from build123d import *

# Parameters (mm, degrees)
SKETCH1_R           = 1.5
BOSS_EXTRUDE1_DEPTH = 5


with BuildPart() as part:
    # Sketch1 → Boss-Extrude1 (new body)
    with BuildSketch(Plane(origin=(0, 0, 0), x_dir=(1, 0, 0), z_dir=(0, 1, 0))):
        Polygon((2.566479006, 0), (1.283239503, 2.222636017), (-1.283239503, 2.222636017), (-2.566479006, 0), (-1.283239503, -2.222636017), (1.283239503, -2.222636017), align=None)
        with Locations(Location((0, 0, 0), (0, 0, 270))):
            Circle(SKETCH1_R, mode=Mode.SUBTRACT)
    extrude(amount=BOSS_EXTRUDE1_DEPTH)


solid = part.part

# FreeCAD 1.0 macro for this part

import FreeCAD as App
import Part
import Sketcher
from FreeCAD import Vector
Q = App.Units.Quantity


def add_polygon(sketch, points):
    """Adds a closed chain of lines whose ends are joined by coincident constraints."""
    first, n = sketch.GeometryCount, len(points)
    for a, b in zip(points, points[1:] + points[:1]):
        sketch.addGeometry(Part.LineSegment(App.Vector(*a, 0), App.Vector(*b, 0)), False)
    for i in range(n):
        sketch.addConstraint(Sketcher.Constraint("Coincident", first + i, 2, first + (i + 1) % n, 1))

doc = App.newDocument("Part")
body = doc.addObject("PartDesign::Body", "Body")

# Sketch on XZ plane
sketch1 = doc.addObject("Sketcher::SketchObject", "Sketch")
body.addObject(sketch1)
sketch1.AttachmentSupport = (doc.XZ_Plane, [""])
sketch1.MapMode = "FlatFace"
add_polygon(sketch1, [(2.6, 0), (1.3, -2.2), (-1.3, -2.2), (-2.6, 0), (-1.3, 2.2), (1.3, 2.2)])  # lines 0-5
sketch1.addGeometry(Part.Circle(Vector(0, 0, 0), Vector(0, 0, 1), 1.5), False)  # 6
sketch1.addConstraint(Sketcher.Constraint("Horizontal", 1))
sketch1.addConstraint(Sketcher.Constraint("Horizontal", 4))
sketch1.addConstraint(Sketcher.Constraint("Coincident", 6, 3, -1, 1))
sketch1.addConstraint(Sketcher.Constraint("Symmetric", 0, 2, 3, 2, -1, 1))
sketch1.addConstraint(Sketcher.Constraint("Symmetric", 2, 2, 5, 2, -1, 1))
sketch1.addConstraint(Sketcher.Constraint("PointOnObject", 2, 2, -1))
sketch1.addConstraint(Sketcher.Constraint("Parallel", 2, 5))
sketch1.addConstraint(Sketcher.Constraint("Vertical", 1, 2, 3, 2))
sketch1.addConstraint(Sketcher.Constraint("Diameter", 6, 3.0))
sketch1.addConstraint(Sketcher.Constraint("Angle", 0, Q("-120 deg")))
sketch1.addConstraint(Sketcher.Constraint("DistanceX", 1, 2, 1, 1, 2.566479))
sketch1.addConstraint(Sketcher.Constraint("Distance", 0, 2.566479))
pad1 = doc.addObject("PartDesign::Pad", "Pad")
body.addObject(pad1)
pad1.Profile = sketch1
pad1.Length = 5
pad1.Reversed = True

doc.recompute()
